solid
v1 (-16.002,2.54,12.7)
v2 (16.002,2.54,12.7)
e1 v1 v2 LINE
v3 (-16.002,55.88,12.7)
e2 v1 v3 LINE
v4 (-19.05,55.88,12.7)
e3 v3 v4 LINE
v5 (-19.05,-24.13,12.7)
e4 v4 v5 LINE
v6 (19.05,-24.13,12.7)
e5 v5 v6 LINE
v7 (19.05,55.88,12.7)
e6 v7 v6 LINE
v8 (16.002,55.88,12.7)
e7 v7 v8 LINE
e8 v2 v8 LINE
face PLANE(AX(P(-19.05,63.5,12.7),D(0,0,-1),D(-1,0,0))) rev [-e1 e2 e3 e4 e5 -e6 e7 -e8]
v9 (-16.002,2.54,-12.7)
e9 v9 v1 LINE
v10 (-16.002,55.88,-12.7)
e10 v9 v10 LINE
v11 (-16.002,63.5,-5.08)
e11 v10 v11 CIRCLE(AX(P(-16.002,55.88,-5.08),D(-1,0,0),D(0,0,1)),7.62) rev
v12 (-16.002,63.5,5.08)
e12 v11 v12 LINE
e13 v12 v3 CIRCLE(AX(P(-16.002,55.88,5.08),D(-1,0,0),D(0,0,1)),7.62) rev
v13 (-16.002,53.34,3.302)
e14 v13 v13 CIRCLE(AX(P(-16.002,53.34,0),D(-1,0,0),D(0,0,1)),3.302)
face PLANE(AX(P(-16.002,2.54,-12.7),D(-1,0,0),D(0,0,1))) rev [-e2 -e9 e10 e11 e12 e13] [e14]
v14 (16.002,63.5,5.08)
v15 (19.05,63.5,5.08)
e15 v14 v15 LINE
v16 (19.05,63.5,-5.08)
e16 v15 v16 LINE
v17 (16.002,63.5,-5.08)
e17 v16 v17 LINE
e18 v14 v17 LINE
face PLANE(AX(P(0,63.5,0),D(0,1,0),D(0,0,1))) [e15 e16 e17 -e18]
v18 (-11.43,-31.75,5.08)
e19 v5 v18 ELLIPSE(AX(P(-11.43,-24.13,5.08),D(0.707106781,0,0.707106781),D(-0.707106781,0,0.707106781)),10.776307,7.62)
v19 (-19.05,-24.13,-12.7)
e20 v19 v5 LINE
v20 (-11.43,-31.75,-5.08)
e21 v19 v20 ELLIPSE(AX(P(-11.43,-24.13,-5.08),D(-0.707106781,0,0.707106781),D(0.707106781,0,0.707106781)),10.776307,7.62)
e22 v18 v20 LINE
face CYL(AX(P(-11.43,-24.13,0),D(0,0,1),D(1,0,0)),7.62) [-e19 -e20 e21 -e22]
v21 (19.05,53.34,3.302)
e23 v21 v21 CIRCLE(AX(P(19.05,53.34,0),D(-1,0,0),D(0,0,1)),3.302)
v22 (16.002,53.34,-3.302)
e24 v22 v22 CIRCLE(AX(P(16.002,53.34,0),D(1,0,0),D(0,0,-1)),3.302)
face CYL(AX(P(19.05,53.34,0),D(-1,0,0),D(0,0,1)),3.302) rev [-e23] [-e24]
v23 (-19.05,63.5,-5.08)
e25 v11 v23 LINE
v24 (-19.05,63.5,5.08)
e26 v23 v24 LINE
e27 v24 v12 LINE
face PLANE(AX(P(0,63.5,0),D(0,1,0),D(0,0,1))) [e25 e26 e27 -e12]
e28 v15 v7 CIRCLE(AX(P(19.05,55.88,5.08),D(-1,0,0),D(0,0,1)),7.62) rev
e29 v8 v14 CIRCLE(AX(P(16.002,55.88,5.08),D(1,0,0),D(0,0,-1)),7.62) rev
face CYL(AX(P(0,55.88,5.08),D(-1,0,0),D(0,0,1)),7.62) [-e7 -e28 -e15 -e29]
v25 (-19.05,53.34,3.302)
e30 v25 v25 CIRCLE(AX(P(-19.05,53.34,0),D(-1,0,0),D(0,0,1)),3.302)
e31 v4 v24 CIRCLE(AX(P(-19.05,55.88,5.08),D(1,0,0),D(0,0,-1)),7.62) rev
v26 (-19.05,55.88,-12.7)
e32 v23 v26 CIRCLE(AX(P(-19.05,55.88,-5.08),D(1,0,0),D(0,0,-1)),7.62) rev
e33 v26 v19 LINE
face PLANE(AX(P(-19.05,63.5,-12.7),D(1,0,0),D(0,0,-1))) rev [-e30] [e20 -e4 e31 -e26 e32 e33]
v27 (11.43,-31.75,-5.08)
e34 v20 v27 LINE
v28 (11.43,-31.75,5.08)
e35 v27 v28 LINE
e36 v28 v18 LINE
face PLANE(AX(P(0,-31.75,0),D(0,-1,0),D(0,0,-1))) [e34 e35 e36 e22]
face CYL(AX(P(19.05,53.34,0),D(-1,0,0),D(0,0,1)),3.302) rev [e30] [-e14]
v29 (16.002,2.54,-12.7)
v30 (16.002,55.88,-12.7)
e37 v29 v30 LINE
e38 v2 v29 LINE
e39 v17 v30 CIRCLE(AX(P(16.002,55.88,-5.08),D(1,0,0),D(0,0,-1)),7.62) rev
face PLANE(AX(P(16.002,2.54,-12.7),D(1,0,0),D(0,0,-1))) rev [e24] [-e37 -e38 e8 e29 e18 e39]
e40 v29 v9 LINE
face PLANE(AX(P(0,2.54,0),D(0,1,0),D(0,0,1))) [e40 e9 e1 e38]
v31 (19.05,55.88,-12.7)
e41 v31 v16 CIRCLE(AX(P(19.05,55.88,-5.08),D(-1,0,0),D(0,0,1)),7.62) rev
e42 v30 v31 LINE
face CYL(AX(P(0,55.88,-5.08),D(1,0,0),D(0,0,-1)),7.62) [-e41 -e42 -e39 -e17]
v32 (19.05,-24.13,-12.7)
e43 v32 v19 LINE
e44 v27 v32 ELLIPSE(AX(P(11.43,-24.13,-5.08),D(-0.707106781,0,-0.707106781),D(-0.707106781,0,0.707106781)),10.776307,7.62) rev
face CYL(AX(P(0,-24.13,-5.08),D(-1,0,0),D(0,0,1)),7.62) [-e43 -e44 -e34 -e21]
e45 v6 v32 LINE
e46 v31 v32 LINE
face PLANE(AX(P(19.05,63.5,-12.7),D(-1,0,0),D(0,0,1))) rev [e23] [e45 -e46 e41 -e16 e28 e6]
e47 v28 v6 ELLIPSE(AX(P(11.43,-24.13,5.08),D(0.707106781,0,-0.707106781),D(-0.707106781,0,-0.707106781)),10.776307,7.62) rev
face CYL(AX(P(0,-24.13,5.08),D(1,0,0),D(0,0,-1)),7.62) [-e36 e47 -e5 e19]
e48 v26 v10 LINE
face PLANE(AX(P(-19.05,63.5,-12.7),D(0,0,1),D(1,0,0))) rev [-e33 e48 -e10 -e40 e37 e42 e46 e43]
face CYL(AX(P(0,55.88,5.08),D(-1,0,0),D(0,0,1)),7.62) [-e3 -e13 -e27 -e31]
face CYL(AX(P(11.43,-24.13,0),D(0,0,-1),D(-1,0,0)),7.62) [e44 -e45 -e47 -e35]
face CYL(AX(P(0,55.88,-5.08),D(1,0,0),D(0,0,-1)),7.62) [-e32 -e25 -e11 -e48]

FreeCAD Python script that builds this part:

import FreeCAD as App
import Part
import Sketcher

V = App.Vector
Q = App.Units.Quantity


def edges_at(feature, points):
    """Names of the edges that pass closest to the given points."""
    edges = feature.Shape.Edges
    near = lambda p: min(range(len(edges)), key=lambda i: edges[i].distToShape(Part.Vertex(*p))[0])
    return sorted({f"Edge{near(p) + 1}" for p in points})


def add_polygon(sketch, points):
    """Adds a closed chain of lines whose ends are joined by coincident constraints."""
    first, n = sketch.GeometryCount, len(points)
    for a, b in zip(points, points[1:] + points[:1]):
        sketch.addGeometry(Part.LineSegment(App.Vector(*a, 0), App.Vector(*b, 0)), False)
    for i in range(n):
        sketch.addConstraint(Sketcher.Constraint("Coincident", first + i, 2, first + (i + 1) % n, 1))

doc = App.newDocument("Part")
body = doc.addObject("PartDesign::Body", "Body")

# Sketch on XZ plane
sketch1 = body.newObject("Sketcher::SketchObject", "Sketch")
sketch1.AttachmentSupport = (doc.getObject("XZ_Plane"), [""])
sketch1.MapMode = "FlatFace"
add_polygon(sketch1, [(-19, -13), (-19, 13), (19, 13), (19, -13)])  # lines 0-3
sketch1.addConstraint(Sketcher.Constraint("Vertical", 0))
sketch1.addConstraint(Sketcher.Constraint("Horizontal", 1))
sketch1.addConstraint(Sketcher.Constraint("Vertical", 2))
sketch1.addConstraint(Sketcher.Constraint("Horizontal", 3))
sketch1.addConstraint(Sketcher.Constraint("Symmetric", 0, 2, 2, 2, -1, 1))
sketch1.addConstraint(Sketcher.Constraint("DistanceY", 0, 1, 0, 2, Q("1 in")))
sketch1.addConstraint(Sketcher.Constraint("DistanceX", 1, 1, 1, 2, Q("1.5 in")))
pad1 = body.newObject("PartDesign::Pad", "Pad")
pad1.Profile = sketch1
pad1.Length = Q("2.5 in")
pad1.Reversed = True

# Sketch on XZ plane
sketch2 = body.newObject("Sketcher::SketchObject", "Sketch001")
sketch2.AttachmentSupport = (doc.getObject("XZ_Plane"), [""])
sketch2.MapMode = "FlatFace"
sketch2.AttachmentOffset = App.Placement(V(0, 0, -2.5 * 25.4), App.Rotation())
add_polygon(sketch2, [(-16, -13), (-16, 13), (16, 13), (16, -13)])  # lines 0-3
sketch2.addConstraint(Sketcher.Constraint("Vertical", 0))
sketch2.addConstraint(Sketcher.Constraint("Horizontal", 1))
sketch2.addConstraint(Sketcher.Constraint("Vertical", 2))
sketch2.addConstraint(Sketcher.Constraint("Horizontal", 3))
sketch2.addConstraint(Sketcher.Constraint("Symmetric", 0, 2, 2, 2, -1, 1))
sketch2.addConstraint(Sketcher.Constraint("DistanceY", 0, 1, 0, 2, Q("1 in")))
sketch2.addConstraint(Sketcher.Constraint("DistanceX", 1, 1, 1, 2, Q("1.26 in")))
pocket1 = body.newObject("PartDesign::Pocket", "Pocket")
pocket1.Profile = sketch2
pocket1.Length = Q("2.4 in")
pocket1.Reversed = True

# Sketch on YZ plane
sketch3 = body.newObject("Sketcher::SketchObject", "Sketch002")
sketch3.AttachmentSupport = (doc.getObject("YZ_Plane"), [""])
sketch3.MapMode = "FlatFace"
sketch3.AttachmentOffset = App.Placement(V(0, 0, -0.75 * 25.4), App.Rotation())
sketch3.addGeometry(Part.Circle(V(53.3, 0, 0), V(0, 0, 1), 3.3), False)
sketch3.addConstraint(Sketcher.Constraint("PointOnObject", 0, 3, -1))
sketch3.addConstraint(Sketcher.Constraint("Diameter", 0, Q("0.26 in")))
sketch3.addConstraint(Sketcher.Constraint("DistanceX", -1, 1, 0, 3, Q("2.1 in")))
pocket2 = body.newObject("PartDesign::Pocket", "Pocket001")
pocket2.Profile = sketch3
pocket2.Type = "ThroughAll"
pocket2.Reversed = True
doc.recompute()

fillet = body.newObject("PartDesign::Fillet", "Fillet")
fillet.Base = (pocket2, edges_at(pocket2, [
    (-17.526, 63.5, -12.7),
    (17.526, 63.5, 12.7),
    (-17.526, 63.5, 12.7),
    (17.526, 63.5, -12.7),
]))
fillet.Radius = Q("0.3 in")

# Sketch on XZ plane
sketch4 = body.newObject("Sketcher::SketchObject", "Sketch003")
sketch4.AttachmentSupport = (doc.getObject("XZ_Plane"), [""])
sketch4.MapMode = "FlatFace"
add_polygon(sketch4, [(-19, 13), (-19, -13), (19, -13), (19, 13)])  # lines 0-3
sketch4.addConstraint(Sketcher.Constraint("Vertical", 0))
sketch4.addConstraint(Sketcher.Constraint("Horizontal", 1))
sketch4.addConstraint(Sketcher.Constraint("Vertical", 2))
sketch4.addConstraint(Sketcher.Constraint("Horizontal", 3))
sketch4.addConstraint(Sketcher.Constraint("Symmetric", 0, 2, 2, 2, -1, 1))
sketch4.addConstraint(Sketcher.Constraint("DistanceY", 0, 2, 0, 1, Q("1 in")))
sketch4.addConstraint(Sketcher.Constraint("DistanceX", 1, 1, 1, 2, Q("1.5 in")))
pad2 = body.newObject("PartDesign::Pad", "Pad001")
pad2.Profile = sketch4
pad2.Length = Q("1.25 in")
doc.recompute()

fillet2 = body.newObject("PartDesign::Fillet", "Fillet001")
fillet2.Base = (pad2, edges_at(pad2, [
    (-19.05, -31.75, 0),
    (0, -31.75, -12.7),
    (19.05, -31.75, 0),
    (0, -31.75, 12.7),
]))
fillet2.Radius = Q("0.3 in")

doc.recompute()
